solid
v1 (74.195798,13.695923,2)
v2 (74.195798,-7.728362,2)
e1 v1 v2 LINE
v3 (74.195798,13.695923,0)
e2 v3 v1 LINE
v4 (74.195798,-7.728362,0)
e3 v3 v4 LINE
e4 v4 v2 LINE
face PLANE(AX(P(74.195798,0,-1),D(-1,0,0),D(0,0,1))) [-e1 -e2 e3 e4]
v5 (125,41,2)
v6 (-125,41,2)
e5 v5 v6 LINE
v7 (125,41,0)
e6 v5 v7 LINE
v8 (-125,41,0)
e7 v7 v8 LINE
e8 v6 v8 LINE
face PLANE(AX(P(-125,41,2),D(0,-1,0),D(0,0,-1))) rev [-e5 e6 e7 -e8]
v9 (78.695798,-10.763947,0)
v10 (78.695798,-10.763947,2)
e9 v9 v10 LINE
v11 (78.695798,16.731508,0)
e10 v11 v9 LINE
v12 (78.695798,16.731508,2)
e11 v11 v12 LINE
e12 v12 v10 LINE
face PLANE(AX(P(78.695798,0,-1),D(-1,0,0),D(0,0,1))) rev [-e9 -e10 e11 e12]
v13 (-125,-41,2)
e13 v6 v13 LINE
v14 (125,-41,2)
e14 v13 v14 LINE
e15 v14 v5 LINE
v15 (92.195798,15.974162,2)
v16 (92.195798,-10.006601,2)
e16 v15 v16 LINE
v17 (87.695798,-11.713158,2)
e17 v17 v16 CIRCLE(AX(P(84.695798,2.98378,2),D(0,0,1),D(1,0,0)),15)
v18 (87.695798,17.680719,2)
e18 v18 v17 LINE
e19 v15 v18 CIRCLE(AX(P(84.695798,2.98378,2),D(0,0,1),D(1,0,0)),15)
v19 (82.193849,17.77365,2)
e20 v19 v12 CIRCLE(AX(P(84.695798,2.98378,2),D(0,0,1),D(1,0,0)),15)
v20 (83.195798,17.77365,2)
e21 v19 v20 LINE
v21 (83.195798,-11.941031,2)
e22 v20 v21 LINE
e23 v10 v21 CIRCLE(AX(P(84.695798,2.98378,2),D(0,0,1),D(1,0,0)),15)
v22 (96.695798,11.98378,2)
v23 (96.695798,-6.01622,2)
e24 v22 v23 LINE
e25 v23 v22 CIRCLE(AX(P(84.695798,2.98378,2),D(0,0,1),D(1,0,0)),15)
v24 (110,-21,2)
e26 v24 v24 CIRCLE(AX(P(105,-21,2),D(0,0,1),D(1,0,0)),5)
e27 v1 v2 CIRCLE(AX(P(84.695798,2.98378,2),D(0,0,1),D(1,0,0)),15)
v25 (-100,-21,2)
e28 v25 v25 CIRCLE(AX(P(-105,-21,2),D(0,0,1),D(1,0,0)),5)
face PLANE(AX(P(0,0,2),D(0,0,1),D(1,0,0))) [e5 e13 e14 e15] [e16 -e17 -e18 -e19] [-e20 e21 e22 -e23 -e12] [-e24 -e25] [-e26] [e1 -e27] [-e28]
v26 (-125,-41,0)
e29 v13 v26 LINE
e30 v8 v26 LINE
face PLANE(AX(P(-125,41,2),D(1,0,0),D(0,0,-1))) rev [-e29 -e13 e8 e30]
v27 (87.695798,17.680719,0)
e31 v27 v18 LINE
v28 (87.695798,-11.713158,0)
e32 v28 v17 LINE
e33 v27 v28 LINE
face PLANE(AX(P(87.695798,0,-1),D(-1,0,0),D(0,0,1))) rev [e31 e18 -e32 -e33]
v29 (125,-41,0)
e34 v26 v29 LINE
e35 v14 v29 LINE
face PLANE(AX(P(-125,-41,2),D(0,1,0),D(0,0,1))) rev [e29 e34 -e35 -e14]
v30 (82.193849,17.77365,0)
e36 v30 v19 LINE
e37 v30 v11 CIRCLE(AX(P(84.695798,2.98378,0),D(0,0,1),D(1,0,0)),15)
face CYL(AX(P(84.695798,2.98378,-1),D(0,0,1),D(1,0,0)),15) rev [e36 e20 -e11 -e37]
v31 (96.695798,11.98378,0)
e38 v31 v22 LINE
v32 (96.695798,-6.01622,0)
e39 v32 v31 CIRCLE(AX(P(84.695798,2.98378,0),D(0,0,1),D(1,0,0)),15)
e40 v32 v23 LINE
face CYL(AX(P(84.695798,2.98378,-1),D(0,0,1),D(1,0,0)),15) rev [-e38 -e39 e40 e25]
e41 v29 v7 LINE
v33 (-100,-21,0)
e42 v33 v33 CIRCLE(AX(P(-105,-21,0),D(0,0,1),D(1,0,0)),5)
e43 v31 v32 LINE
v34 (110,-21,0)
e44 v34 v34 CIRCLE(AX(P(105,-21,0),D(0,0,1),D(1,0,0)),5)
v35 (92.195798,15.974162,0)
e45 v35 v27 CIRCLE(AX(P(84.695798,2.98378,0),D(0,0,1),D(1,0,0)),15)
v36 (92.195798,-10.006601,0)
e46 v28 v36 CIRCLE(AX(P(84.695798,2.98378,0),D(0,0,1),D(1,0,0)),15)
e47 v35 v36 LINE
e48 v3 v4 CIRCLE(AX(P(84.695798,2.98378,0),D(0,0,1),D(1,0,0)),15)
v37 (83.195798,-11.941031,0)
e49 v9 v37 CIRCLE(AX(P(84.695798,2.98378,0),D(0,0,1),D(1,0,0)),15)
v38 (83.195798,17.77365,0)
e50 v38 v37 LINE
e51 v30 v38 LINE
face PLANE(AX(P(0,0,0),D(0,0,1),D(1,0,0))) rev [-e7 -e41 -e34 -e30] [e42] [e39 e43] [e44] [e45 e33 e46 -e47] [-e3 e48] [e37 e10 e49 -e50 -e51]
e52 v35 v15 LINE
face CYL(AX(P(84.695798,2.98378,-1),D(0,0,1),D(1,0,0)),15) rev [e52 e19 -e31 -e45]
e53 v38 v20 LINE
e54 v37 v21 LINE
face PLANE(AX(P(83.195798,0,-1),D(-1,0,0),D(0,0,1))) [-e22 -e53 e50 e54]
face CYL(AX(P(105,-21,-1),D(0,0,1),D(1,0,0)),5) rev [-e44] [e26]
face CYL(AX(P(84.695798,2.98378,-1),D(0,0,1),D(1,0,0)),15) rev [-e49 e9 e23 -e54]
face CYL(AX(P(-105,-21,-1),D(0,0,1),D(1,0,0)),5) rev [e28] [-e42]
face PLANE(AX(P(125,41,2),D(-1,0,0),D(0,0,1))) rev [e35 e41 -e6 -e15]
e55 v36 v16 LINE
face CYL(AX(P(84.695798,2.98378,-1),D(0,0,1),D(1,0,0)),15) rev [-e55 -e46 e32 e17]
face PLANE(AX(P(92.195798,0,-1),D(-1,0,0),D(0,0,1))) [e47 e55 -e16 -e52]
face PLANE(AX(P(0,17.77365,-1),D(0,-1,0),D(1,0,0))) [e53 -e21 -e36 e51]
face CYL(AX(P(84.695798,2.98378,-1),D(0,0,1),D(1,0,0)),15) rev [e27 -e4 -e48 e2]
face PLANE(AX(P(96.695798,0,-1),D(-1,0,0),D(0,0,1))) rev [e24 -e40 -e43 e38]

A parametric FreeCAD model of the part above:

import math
import FreeCAD as App
import Part
import Sketcher

V = App.Vector
Q = App.Units.Quantity


def add_polygon(sketch, points):
    """Adds a closed chain of lines whose ends are joined by coincident constraints."""
    first, n = sketch.GeometryCount, len(points)
    for a, b in zip(points, points[1:] + points[:1]):
        sketch.addGeometry(Part.LineSegment(App.Vector(*a, 0), App.Vector(*b, 0)), False)
    for i in range(n):
        sketch.addConstraint(Sketcher.Constraint("Coincident", first + i, 2, first + (i + 1) % n, 1))

doc = App.newDocument("Part")
body = doc.addObject("PartDesign::Body", "Body")

# Sketch on XY plane
sketch1 = body.newObject("Sketcher::SketchObject", "Sketch")
sketch1.AttachmentSupport = (doc.getObject("XY_Plane"), [""])
sketch1.MapMode = "FlatFace"
add_polygon(sketch1, [(-125, 41), (-125, -41), (125, -41), (125, 41)])  # lines 0-3
sketch1.addConstraint([
    Sketcher.Constraint("Vertical", 0),
    Sketcher.Constraint("Horizontal", 1),
    Sketcher.Constraint("Vertical", 2),
    Sketcher.Constraint("Horizontal", 3),
    Sketcher.Constraint("Symmetric", 0, 2, 2, 2, -1, 1),
    Sketcher.Constraint("DistanceX", 1, 1, 1, 2, Q("250 mm")),
    Sketcher.Constraint("DistanceY", 0, 2, 0, 1, Q("82 mm")),
])
pad1 = body.newObject("PartDesign::Pad", "Pad")
pad1.Profile = sketch1
pad1.Length = 2

# Sketch on XY plane
sketch2 = body.newObject("Sketcher::SketchObject", "Sketch001")
sketch2.AttachmentSupport = (doc.getObject("XY_Plane"), [""])
sketch2.MapMode = "FlatFace"
sketch2.AttachmentOffset = App.Placement(V(0, 0, 2), App.Rotation())
sketch2.addGeometry([
    Part.ArcOfCircle(Part.Circle(V(84.7, 3, 0), V(0, 0, 1), 15), math.radians(134), math.radians(180)),  # 0
    Part.ArcOfCircle(Part.Circle(V(84.7, 3, 0), V(0, 0, 1), 15), math.radians(180), math.radians(226)),  # 1
    Part.LineSegment(V(74.2, -7.7, 0), V(74.2, 13.7, 0)),  # 2
    Part.LineSegment(V(83.2, 17.8, 0), V(82.2, 17.8, 0)),  # 3
    Part.ArcOfCircle(Part.Circle(V(84.7, 3, 0), V(0, 0, 1), 15), math.radians(99.6), math.radians(113.58)),  # 4
    Part.LineSegment(V(78.7, 16.7, 0), V(78.7, -10.8, 0)),  # 5
    Part.ArcOfCircle(Part.Circle(V(84.7, 3, 0), V(0, 0, 1), 15), math.radians(-113.58), math.radians(-95.74)),  # 6
    Part.LineSegment(V(83.2, -11.9, 0), V(83.2, 17.8, 0)),  # 7
    Part.ArcOfCircle(Part.Circle(V(84.7, 3, 0), V(0, 0, 1), 15), math.radians(60), math.radians(78.46)),  # 8
    Part.LineSegment(V(87.7, 17.7, 0), V(87.7, -11.7, 0)),  # 9
    Part.ArcOfCircle(Part.Circle(V(84.7, 3, 0), V(0, 0, 1), 15), math.radians(-78.46), math.radians(-60)),  # 10
    Part.LineSegment(V(92.2, -10, 0), V(92.2, 16, 0)),  # 11
    Part.ArcOfCircle(Part.Circle(V(84.7, 3, 0), V(0, 0, 1), 15), math.radians(0), math.radians(37)),  # 12
    Part.LineSegment(V(96.7, 12, 0), V(96.7, -6, 0)),  # 13
    Part.ArcOfCircle(Part.Circle(V(84.7, 3, 0), V(0, 0, 1), 15), math.radians(-37), math.radians(0)),  # 14
], False)
sketch2.addConstraint([
    Sketcher.Constraint("Tangent", 0, 2, 1, 1),
    Sketcher.Constraint("Coincident", 1, 2, 2, 1),
    Sketcher.Constraint("Coincident", 2, 2, 0, 1),
    Sketcher.Constraint("Coincident", 3, 2, 4, 1),
    Sketcher.Constraint("Coincident", 4, 2, 5, 1),
    Sketcher.Constraint("Coincident", 5, 2, 6, 1),
    Sketcher.Constraint("Coincident", 6, 2, 7, 1),
    Sketcher.Constraint("Coincident", 7, 2, 3, 1),
    Sketcher.Constraint("Coincident", 8, 2, 9, 1),
    Sketcher.Constraint("Coincident", 9, 2, 10, 1),
    Sketcher.Constraint("Coincident", 10, 2, 11, 1),
    Sketcher.Constraint("Coincident", 11, 2, 8, 1),
    Sketcher.Constraint("Coincident", 12, 2, 13, 1),
    Sketcher.Constraint("Coincident", 13, 2, 14, 1),
    Sketcher.Constraint("Tangent", 14, 2, 12, 1),
    Sketcher.Constraint("Vertical", 2),
    Sketcher.Constraint("Horizontal", 3),
    Sketcher.Constraint("Vertical", 5),
    Sketcher.Constraint("Vertical", 7),
    Sketcher.Constraint("Vertical", 9),
    Sketcher.Constraint("Vertical", 11),
    Sketcher.Constraint("Vertical", 13),
    Sketcher.Constraint("Coincident", 4, 3, 0, 3),
    Sketcher.Constraint("Coincident", 6, 3, 0, 3),
    Sketcher.Constraint("Coincident", 8, 3, 0, 3),
    Sketcher.Constraint("Coincident", 10, 3, 0, 3),
    Sketcher.Constraint("Coincident", 12, 3, 0, 3),
    Sketcher.Constraint("Equal", 0, 1),
    Sketcher.Constraint("Equal", 1, 4),
    Sketcher.Constraint("Equal", 4, 6),
    Sketcher.Constraint("Equal", 6, 8),
    Sketcher.Constraint("Equal", 8, 10),
    Sketcher.Constraint("Equal", 10, 12),
    Sketcher.Constraint("Equal", 12, 14),
    Sketcher.Constraint("Horizontal", 14, 3, 0, 2),
    Sketcher.Constraint("Horizontal", 0, 2, 14, 2),
    Sketcher.Constraint("Radius", 0, Q("15 mm")),
    Sketcher.Constraint("DistanceY", 13, 2, 13, 1, Q("18 mm")),
    Sketcher.Constraint("DistanceX", 4, 2, 6, 3, Q("6 mm")),
    Sketcher.Constraint("DistanceX", 1, 2, 6, 2, Q("9 mm")),
    Sketcher.Constraint("DistanceX", 4, 2, 8, 2, Q("9 mm")),
    Sketcher.Constraint("DistanceX", 6, 2, 10, 2, Q("9 mm")),
    Sketcher.Constraint("DistanceX", 0, 2, 1, 2, Q("4.5 mm")),
    Sketcher.Constraint("DistanceX", 3, 2, 3, 1, Q("1.001949 mm")),
    Sketcher.Constraint("DistanceY", 10, 2, -1, 1, Q("10.006601 mm")),
    Sketcher.Constraint("DistanceX", -1, 1, 3, 2, Q("82.193849 mm")),
])
pocket1 = body.newObject("PartDesign::Pocket", "Pocket")
pocket1.Profile = sketch2
pocket1.Length = 3

# Sketch on XY plane
sketch3 = body.newObject("Sketcher::SketchObject", "Sketch002")
sketch3.AttachmentSupport = (doc.getObject("XY_Plane"), [""])
sketch3.MapMode = "FlatFace"
sketch3.AttachmentOffset = App.Placement(V(0, 0, 2), App.Rotation())
sketch3.addGeometry([
    Part.Circle(V(-105, -21, 0), V(0, 0, 1), 5),
    Part.Circle(V(105, -21, 0), V(0, 0, 1), 5),
], False)
sketch3.addConstraint([
    Sketcher.Constraint("Equal", 0, 1),
    Sketcher.Constraint("Symmetric", 0, 3, 1, 3, -2),
    Sketcher.Constraint("Diameter", 0, Q("10 mm")),
    Sketcher.Constraint("DistanceX", 0, 3, -1, 1, Q("105 mm")),
    Sketcher.Constraint("DistanceY", 0, 3, -1, 1, Q("21 mm")),
])
pocket2 = body.newObject("PartDesign::Pocket", "Pocket001")
pocket2.Profile = sketch3
pocket2.Length = 3

doc.recompute()
